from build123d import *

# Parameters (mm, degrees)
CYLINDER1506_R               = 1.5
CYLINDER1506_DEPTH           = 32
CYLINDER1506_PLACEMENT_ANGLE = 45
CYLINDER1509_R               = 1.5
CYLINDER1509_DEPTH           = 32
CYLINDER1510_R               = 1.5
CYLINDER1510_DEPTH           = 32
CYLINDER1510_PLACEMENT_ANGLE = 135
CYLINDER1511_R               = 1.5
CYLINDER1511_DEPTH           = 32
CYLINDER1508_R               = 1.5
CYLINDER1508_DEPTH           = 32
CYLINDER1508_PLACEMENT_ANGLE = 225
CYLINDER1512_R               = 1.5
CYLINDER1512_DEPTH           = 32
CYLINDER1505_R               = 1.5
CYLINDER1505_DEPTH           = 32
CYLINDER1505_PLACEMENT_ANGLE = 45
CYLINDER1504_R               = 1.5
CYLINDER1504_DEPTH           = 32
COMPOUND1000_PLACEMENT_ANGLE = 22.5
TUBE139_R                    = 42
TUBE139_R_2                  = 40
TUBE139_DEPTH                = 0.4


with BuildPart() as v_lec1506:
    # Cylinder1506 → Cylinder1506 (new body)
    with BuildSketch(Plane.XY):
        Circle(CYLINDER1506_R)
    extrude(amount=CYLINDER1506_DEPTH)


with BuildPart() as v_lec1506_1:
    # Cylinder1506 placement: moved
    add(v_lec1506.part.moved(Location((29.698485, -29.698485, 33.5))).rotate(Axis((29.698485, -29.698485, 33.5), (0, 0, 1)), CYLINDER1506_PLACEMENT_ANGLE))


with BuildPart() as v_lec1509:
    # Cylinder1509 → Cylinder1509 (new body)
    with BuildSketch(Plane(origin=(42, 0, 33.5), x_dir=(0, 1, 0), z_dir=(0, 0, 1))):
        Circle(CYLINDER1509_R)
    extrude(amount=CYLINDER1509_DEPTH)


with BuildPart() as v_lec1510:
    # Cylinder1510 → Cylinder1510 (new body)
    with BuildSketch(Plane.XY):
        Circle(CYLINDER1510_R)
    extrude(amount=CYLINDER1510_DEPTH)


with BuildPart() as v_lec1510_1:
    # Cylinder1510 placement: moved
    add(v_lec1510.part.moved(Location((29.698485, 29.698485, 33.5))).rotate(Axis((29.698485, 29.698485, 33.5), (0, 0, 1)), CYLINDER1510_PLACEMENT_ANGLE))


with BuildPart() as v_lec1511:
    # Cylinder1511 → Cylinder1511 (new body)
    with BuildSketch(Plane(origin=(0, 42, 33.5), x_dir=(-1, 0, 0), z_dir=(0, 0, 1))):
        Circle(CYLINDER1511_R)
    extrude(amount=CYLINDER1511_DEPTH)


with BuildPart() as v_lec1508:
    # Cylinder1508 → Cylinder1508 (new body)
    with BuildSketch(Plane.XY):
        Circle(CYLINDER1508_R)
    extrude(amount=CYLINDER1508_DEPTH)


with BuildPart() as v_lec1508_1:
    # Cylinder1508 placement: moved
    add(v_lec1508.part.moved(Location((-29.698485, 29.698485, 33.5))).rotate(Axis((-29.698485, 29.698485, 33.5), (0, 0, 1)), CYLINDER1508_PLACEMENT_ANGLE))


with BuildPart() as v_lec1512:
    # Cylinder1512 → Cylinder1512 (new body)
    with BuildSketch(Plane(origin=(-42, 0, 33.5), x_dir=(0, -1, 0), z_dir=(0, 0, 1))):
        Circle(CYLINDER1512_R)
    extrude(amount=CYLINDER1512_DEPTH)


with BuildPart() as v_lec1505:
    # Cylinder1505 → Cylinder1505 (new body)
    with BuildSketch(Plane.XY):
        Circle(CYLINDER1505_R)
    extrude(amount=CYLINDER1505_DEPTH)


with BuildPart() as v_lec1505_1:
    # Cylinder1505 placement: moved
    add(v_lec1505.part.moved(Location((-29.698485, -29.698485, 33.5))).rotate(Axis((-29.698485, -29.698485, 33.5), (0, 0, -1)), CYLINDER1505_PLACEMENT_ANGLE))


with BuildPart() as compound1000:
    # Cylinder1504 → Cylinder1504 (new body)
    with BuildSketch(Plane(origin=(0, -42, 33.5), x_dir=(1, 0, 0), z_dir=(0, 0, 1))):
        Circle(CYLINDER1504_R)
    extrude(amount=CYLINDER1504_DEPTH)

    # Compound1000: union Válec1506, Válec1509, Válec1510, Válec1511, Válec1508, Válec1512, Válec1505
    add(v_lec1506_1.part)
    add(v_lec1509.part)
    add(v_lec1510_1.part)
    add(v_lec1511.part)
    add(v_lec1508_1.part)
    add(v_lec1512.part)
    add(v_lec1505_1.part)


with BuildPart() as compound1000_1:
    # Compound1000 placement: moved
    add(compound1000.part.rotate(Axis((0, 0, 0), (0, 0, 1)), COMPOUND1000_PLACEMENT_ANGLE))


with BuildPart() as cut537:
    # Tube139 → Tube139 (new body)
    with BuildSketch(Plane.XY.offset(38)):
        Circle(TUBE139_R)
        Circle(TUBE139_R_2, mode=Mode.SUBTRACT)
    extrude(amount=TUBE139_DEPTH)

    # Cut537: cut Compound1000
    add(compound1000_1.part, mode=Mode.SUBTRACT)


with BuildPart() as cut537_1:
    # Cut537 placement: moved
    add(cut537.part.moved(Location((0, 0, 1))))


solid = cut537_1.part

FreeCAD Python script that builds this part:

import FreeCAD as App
import Part
import Sketcher
from FreeCAD import Vector
Q = App.Units.Quantity

doc = App.newDocument("Part")
body = doc.addObject("PartDesign::Body", "Body")

# Sketch on XY plane
sketch1 = doc.addObject("Sketcher::SketchObject", "Sketch")
body.addObject(sketch1)
sketch1.AttachmentSupport = (doc.XY_Plane, [""])
sketch1.MapMode = "FlatFace"
sketch1.addGeometry(Part.Circle(Vector(0, 0, 0), Vector(0, 0, 1), 1.5), False)
sketch1.addConstraint(Sketcher.Constraint("Coincident", 0, 3, -1, 1))
sketch1.addConstraint(Sketcher.Constraint("Diameter", 0, Q("3 mm")))
pad1 = doc.addObject("PartDesign::Pad", "Pad")
body.addObject(pad1)
pad1.Profile = sketch1
pad1.Length = 32
body2 = doc.addObject("PartDesign::Body", "Body001")
doc.recompute()

body.Placement = App.Placement(Vector(29.698485, -29.698485, 33.5), App.Rotation(Vector(0, 0, 1), 45))
boolean = doc.addObject("PartDesign::Boolean", "Boolean")
body2.addObject(boolean)
boolean.Type = "Fuse"
boolean.addObjects([body])
body3 = doc.addObject("PartDesign::Body", "Body002")

# Sketch on XY plane
sketch2 = doc.addObject("Sketcher::SketchObject", "Sketch001")
body3.addObject(sketch2)
sketch2.AttachmentSupport = (doc.getObject("XY_Plane002"), [""])
sketch2.MapMode = "FlatFace"
sketch2.AttachmentOffset = App.Placement(Vector(0, 0, 33.5), App.Rotation())
sketch2.addGeometry(Part.Circle(Vector(42, 0, 0), Vector(0, 0, 1), 1.5), False)
sketch2.addConstraint(Sketcher.Constraint("PointOnObject", 0, 3, -1))
sketch2.addConstraint(Sketcher.Constraint("Diameter", 0, Q("3 mm")))
sketch2.addConstraint(Sketcher.Constraint("DistanceX", -1, 1, 0, 3, Q("42 mm")))
pad2 = doc.addObject("PartDesign::Pad", "Pad001")
body3.addObject(pad2)
pad2.Profile = sketch2
pad2.Length = 32
body4 = doc.addObject("PartDesign::Body", "Body003")

# Sketch on XY plane
sketch3 = doc.addObject("Sketcher::SketchObject", "Sketch002")
body4.addObject(sketch3)
sketch3.AttachmentSupport = (doc.getObject("XY_Plane003"), [""])
sketch3.MapMode = "FlatFace"
sketch3.addGeometry(Part.Circle(Vector(0, 0, 0), Vector(0, 0, 1), 1.5), False)
sketch3.addConstraint(Sketcher.Constraint("Coincident", 0, 3, -1, 1))
sketch3.addConstraint(Sketcher.Constraint("Diameter", 0, Q("3 mm")))
pad3 = doc.addObject("PartDesign::Pad", "Pad002")
body4.addObject(pad3)
pad3.Profile = sketch3
pad3.Length = 32
body5 = doc.addObject("PartDesign::Body", "Body004")
doc.recompute()

body4.Placement = App.Placement(Vector(29.698485, 29.698485, 33.5), App.Rotation(Vector(0, 0, 1), 135))
boolean2 = doc.addObject("PartDesign::Boolean", "Boolean001")
body5.addObject(boolean2)
boolean2.Type = "Fuse"
boolean2.addObjects([body4])
body6 = doc.addObject("PartDesign::Body", "Body005")

# Sketch on XY plane
sketch4 = doc.addObject("Sketcher::SketchObject", "Sketch003")
body6.addObject(sketch4)
sketch4.AttachmentSupport = (doc.getObject("XY_Plane005"), [""])
sketch4.MapMode = "FlatFace"
sketch4.AttachmentOffset = App.Placement(Vector(0, 0, 33.5), App.Rotation())
sketch4.addGeometry(Part.Circle(Vector(0, 42, 0), Vector(0, 0, 1), 1.5), False)
sketch4.addConstraint(Sketcher.Constraint("PointOnObject", 0, 3, -2))
sketch4.addConstraint(Sketcher.Constraint("Diameter", 0, Q("3 mm")))
sketch4.addConstraint(Sketcher.Constraint("DistanceY", -1, 1, 0, 3, Q("42 mm")))
pad4 = doc.addObject("PartDesign::Pad", "Pad003")
body6.addObject(pad4)
pad4.Profile = sketch4
pad4.Length = 32
body7 = doc.addObject("PartDesign::Body", "Body006")

# Sketch on XY plane
sketch5 = doc.addObject("Sketcher::SketchObject", "Sketch004")
body7.addObject(sketch5)
sketch5.AttachmentSupport = (doc.getObject("XY_Plane006"), [""])
sketch5.MapMode = "FlatFace"
sketch5.addGeometry(Part.Circle(Vector(0, 0, 0), Vector(0, 0, 1), 1.5), False)
sketch5.addConstraint(Sketcher.Constraint("Coincident", 0, 3, -1, 1))
sketch5.addConstraint(Sketcher.Constraint("Diameter", 0, Q("3 mm")))
pad5 = doc.addObject("PartDesign::Pad", "Pad004")
body7.addObject(pad5)
pad5.Profile = sketch5
pad5.Length = 32
body8 = doc.addObject("PartDesign::Body", "Body007")
doc.recompute()

body7.Placement = App.Placement(Vector(-29.698485, 29.698485, 33.5), App.Rotation(Vector(0, 0, 1), 225))
boolean3 = doc.addObject("PartDesign::Boolean", "Boolean002")
body8.addObject(boolean3)
boolean3.Type = "Fuse"
boolean3.addObjects([body7])
body9 = doc.addObject("PartDesign::Body", "Body008")

# Sketch on XY plane
sketch6 = doc.addObject("Sketcher::SketchObject", "Sketch005")
body9.addObject(sketch6)
sketch6.AttachmentSupport = (doc.getObject("XY_Plane008"), [""])
sketch6.MapMode = "FlatFace"
sketch6.AttachmentOffset = App.Placement(Vector(0, 0, 33.5), App.Rotation())
sketch6.addGeometry(Part.Circle(Vector(-42, 0, 0), Vector(0, 0, 1), 1.5), False)
sketch6.addConstraint(Sketcher.Constraint("PointOnObject", 0, 3, -1))
sketch6.addConstraint(Sketcher.Constraint("Diameter", 0, Q("3 mm")))
sketch6.addConstraint(Sketcher.Constraint("DistanceX", 0, 3, -1, 1, Q("42 mm")))
pad6 = doc.addObject("PartDesign::Pad", "Pad005")
body9.addObject(pad6)
pad6.Profile = sketch6
pad6.Length = 32
body10 = doc.addObject("PartDesign::Body", "Body009")

# Sketch on XY plane
sketch7 = doc.addObject("Sketcher::SketchObject", "Sketch006")
body10.addObject(sketch7)
sketch7.AttachmentSupport = (doc.getObject("XY_Plane009"), [""])
sketch7.MapMode = "FlatFace"
sketch7.addGeometry(Part.Circle(Vector(0, 0, 0), Vector(0, 0, 1), 1.5), False)
sketch7.addConstraint(Sketcher.Constraint("Coincident", 0, 3, -1, 1))
sketch7.addConstraint(Sketcher.Constraint("Diameter", 0, Q("3 mm")))
pad7 = doc.addObject("PartDesign::Pad", "Pad006")
body10.addObject(pad7)
pad7.Profile = sketch7
pad7.Length = 32
body11 = doc.addObject("PartDesign::Body", "Body010")
doc.recompute()

body10.Placement = App.Placement(Vector(-29.698485, -29.698485, 33.5), App.Rotation(Vector(0, 0, -1), 45))
boolean4 = doc.addObject("PartDesign::Boolean", "Boolean003")
body11.addObject(boolean4)
boolean4.Type = "Fuse"
boolean4.addObjects([body10])
body12 = doc.addObject("PartDesign::Body", "Body011")
body12.AllowCompound = True

# Sketch on XY plane
sketch8 = doc.addObject("Sketcher::SketchObject", "Sketch007")
body12.addObject(sketch8)
sketch8.AttachmentSupport = (doc.getObject("XY_Plane011"), [""])
sketch8.MapMode = "FlatFace"
sketch8.AttachmentOffset = App.Placement(Vector(0, 0, 33.5), App.Rotation())
sketch8.addGeometry(Part.Circle(Vector(0, -42, 0), Vector(0, 0, 1), 1.5), False)
sketch8.addConstraint(Sketcher.Constraint("PointOnObject", 0, 3, -2))
sketch8.addConstraint(Sketcher.Constraint("Diameter", 0, Q("3 mm")))
sketch8.addConstraint(Sketcher.Constraint("DistanceY", 0, 3, -1, 1, Q("42 mm")))
pad8 = doc.addObject("PartDesign::Pad", "Pad007")
body12.addObject(pad8)
pad8.Profile = sketch8
pad8.Length = 32
doc.recompute()

boolean5 = doc.addObject("PartDesign::Boolean", "Boolean004")
body12.addObject(boolean5)
boolean5.Type = "Fuse"
boolean5.addObjects([body2])
doc.recompute()

boolean6 = doc.addObject("PartDesign::Boolean", "Boolean005")
body12.addObject(boolean6)
boolean6.Type = "Fuse"
boolean6.addObjects([body3])
doc.recompute()

boolean7 = doc.addObject("PartDesign::Boolean", "Boolean006")
body12.addObject(boolean7)
boolean7.Type = "Fuse"
boolean7.addObjects([body5])
doc.recompute()

boolean8 = doc.addObject("PartDesign::Boolean", "Boolean007")
body12.addObject(boolean8)
boolean8.Type = "Fuse"
boolean8.addObjects([body6])
doc.recompute()

boolean9 = doc.addObject("PartDesign::Boolean", "Boolean008")
body12.addObject(boolean9)
boolean9.Type = "Fuse"
boolean9.addObjects([body8])
doc.recompute()

boolean10 = doc.addObject("PartDesign::Boolean", "Boolean009")
body12.addObject(boolean10)
boolean10.Type = "Fuse"
boolean10.addObjects([body9])
doc.recompute()

boolean11 = doc.addObject("PartDesign::Boolean", "Boolean010")
body12.addObject(boolean11)
boolean11.Type = "Fuse"
boolean11.addObjects([body11])
body13 = doc.addObject("PartDesign::Body", "Body012")
body13.AllowCompound = True
doc.recompute()

body12.Placement = App.Placement(Vector(0, 0, 0), App.Rotation(Vector(0, 0, 1), 22.5))
boolean12 = doc.addObject("PartDesign::Boolean", "Boolean011")
body13.addObject(boolean12)
boolean12.Type = "Fuse"
boolean12.addObjects([body12])
body14 = doc.addObject("PartDesign::Body", "Body013")

# Sketch on XY plane
sketch9 = doc.addObject("Sketcher::SketchObject", "Sketch008")
body14.addObject(sketch9)
sketch9.AttachmentSupport = (doc.getObject("XY_Plane013"), [""])
sketch9.MapMode = "FlatFace"
sketch9.AttachmentOffset = App.Placement(Vector(0, 0, 38), App.Rotation())
sketch9.addGeometry(Part.Circle(Vector(0, 0, 0), Vector(0, 0, 1), 42), False)
sketch9.addGeometry(Part.Circle(Vector(0, 0, 0), Vector(0, 0, 1), 40), False)
sketch9.addConstraint(Sketcher.Constraint("Coincident", 0, 3, -1, 1))
sketch9.addConstraint(Sketcher.Constraint("Coincident", 1, 3, -1, 1))
sketch9.addConstraint(Sketcher.Constraint("Diameter", 0, Q("84 mm")))
sketch9.addConstraint(Sketcher.Constraint("Diameter", 1, Q("80 mm")))
pad9 = doc.addObject("PartDesign::Pad", "Pad008")
body14.addObject(pad9)
pad9.Profile = sketch9
pad9.Length = 0.4
doc.recompute()

boolean13 = doc.addObject("PartDesign::Boolean", "Boolean012")
body14.addObject(boolean13)
boolean13.Type = "Cut"
boolean13.addObjects([body13])
body15 = doc.addObject("PartDesign::Body", "Body014")
doc.recompute()

body14.Placement = App.Placement(Vector(0, 0, 1), App.Rotation(Vector(0, 0, 1), 0))
boolean14 = doc.addObject("PartDesign::Boolean", "Boolean013")
body15.addObject(boolean14)
boolean14.Type = "Fuse"
boolean14.addObjects([body14])

doc.recompute()
